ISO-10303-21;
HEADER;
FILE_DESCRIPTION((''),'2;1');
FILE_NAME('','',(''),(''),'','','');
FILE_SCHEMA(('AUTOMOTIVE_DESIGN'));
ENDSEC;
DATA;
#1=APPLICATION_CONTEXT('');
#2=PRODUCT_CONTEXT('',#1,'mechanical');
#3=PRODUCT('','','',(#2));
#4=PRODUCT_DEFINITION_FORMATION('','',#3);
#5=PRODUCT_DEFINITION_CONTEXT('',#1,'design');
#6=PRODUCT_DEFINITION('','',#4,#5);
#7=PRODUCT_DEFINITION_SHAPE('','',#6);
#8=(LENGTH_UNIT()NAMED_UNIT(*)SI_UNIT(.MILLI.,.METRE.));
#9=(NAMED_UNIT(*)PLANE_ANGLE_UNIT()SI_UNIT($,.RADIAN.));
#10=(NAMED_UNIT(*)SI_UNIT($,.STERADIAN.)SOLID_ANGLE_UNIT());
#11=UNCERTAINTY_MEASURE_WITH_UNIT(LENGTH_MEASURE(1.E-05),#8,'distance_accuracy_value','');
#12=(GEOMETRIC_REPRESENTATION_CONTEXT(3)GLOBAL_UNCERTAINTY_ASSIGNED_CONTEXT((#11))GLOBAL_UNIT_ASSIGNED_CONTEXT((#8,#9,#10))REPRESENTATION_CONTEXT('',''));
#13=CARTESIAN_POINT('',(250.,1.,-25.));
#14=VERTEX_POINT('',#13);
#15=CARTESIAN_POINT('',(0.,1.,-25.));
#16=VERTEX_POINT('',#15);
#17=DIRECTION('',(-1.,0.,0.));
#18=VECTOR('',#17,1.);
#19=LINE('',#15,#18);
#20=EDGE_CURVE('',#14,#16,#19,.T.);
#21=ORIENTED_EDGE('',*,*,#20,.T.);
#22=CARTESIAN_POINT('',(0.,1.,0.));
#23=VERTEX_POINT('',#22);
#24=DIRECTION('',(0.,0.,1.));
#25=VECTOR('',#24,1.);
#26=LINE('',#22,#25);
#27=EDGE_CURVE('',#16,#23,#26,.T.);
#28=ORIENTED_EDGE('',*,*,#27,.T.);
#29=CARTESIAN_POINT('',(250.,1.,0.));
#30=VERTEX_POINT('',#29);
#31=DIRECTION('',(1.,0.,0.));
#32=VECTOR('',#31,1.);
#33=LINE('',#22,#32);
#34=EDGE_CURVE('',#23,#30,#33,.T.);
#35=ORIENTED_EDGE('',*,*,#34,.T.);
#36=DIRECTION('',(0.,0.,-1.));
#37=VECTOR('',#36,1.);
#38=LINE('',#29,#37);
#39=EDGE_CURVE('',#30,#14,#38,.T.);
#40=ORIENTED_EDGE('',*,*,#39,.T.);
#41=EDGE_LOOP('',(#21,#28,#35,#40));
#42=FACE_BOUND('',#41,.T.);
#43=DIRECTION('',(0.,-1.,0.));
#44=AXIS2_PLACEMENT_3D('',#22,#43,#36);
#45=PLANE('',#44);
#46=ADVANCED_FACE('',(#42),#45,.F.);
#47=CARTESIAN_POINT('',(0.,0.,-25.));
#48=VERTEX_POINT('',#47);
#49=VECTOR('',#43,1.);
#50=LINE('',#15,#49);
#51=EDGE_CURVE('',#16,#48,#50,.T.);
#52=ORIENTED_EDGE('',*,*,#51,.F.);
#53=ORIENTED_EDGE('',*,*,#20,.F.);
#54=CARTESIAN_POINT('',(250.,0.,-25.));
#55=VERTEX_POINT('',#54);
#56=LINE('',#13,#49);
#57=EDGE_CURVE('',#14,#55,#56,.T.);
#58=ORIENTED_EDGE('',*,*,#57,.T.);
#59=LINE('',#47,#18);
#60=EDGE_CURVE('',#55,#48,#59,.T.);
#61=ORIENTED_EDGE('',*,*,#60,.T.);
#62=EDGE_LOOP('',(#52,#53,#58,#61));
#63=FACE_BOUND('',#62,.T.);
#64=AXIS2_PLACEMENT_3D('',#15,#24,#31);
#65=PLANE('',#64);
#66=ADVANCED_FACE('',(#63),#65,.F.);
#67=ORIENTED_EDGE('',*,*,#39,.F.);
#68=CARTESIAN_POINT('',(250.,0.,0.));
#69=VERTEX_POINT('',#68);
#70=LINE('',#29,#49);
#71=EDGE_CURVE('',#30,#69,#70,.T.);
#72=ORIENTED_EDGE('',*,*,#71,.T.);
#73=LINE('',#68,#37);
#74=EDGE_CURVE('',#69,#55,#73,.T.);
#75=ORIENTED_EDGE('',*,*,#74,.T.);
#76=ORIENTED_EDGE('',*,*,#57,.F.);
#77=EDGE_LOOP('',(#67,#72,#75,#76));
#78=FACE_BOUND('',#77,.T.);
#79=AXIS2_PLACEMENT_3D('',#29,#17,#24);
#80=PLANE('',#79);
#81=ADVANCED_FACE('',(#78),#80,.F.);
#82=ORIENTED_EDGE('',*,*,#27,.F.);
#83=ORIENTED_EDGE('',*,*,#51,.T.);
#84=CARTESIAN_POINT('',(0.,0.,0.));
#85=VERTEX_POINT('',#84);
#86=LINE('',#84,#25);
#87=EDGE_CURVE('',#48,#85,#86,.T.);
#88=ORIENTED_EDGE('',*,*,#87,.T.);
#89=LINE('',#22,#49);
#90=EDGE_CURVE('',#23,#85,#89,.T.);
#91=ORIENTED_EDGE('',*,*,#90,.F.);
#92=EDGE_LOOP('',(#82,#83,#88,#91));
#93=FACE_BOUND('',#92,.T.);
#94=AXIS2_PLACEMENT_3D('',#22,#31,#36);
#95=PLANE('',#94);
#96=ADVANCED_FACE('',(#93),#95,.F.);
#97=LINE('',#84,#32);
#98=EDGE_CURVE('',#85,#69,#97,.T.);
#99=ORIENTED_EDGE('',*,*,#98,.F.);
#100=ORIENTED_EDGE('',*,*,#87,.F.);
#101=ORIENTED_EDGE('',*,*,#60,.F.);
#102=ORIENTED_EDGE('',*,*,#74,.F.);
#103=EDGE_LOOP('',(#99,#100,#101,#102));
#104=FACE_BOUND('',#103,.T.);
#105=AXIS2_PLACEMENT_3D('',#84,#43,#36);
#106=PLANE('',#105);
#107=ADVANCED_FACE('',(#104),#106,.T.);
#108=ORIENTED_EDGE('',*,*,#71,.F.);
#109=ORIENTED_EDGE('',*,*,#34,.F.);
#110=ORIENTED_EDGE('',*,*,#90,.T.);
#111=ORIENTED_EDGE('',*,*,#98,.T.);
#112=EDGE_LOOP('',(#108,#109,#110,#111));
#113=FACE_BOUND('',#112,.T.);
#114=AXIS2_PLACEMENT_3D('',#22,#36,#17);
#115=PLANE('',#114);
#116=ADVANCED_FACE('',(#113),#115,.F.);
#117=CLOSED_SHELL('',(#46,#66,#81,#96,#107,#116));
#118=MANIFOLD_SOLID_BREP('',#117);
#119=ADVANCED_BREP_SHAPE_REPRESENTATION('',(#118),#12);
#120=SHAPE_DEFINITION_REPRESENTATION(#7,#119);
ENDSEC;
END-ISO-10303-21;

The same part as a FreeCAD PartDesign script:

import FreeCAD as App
import Part
import Sketcher

V = App.Vector


def add_polygon(sketch, points):
    """Adds a closed chain of lines whose ends are joined by coincident constraints."""
    first, n = sketch.GeometryCount, len(points)
    for a, b in zip(points, points[1:] + points[:1]):
        sketch.addGeometry(Part.LineSegment(App.Vector(*a, 0), App.Vector(*b, 0)), False)
    for i in range(n):
        sketch.addConstraint(Sketcher.Constraint("Coincident", first + i, 2, first + (i + 1) % n, 1))

doc = App.newDocument("Part")
params = doc.addObject("Spreadsheet::Sheet", "Params")
for row, (alias, value) in enumerate([
    ("sketch1_width", "250 mm"),
    ("sketch1_height", "25 mm"),
    ("pad1_length", "1 mm"),
], start=1):
    params.set(f"A{row}", alias)
    params.set(f"B{row}", "=" + value)
    params.setAlias(f"B{row}", alias)

body = doc.addObject("PartDesign::Body", "Body")

# Sketch on XZ plane
sketch1 = doc.addObject("Sketcher::SketchObject", "Sketch")
body.addObject(sketch1)
sketch1.AttachmentSupport = (doc.XZ_Plane, [""])
sketch1.MapMode = "FlatFace"
add_polygon(sketch1, [(0, -25), (0, 0), (250, 0), (250, -25)])  # lines 0-3
sketch1.addConstraint(Sketcher.Constraint("Vertical", 0))
sketch1.addConstraint(Sketcher.Constraint("Horizontal", 1))
sketch1.addConstraint(Sketcher.Constraint("Vertical", 2))
sketch1.addConstraint(Sketcher.Constraint("Horizontal", 3))
sketch1.addConstraint(Sketcher.Constraint("Coincident", 0, 2, -1, 1))
sketch1.addConstraint(Sketcher.Constraint("DistanceX", 1, 1, 1, 2, 250.0))
sketch1.addConstraint(Sketcher.Constraint("DistanceY", 0, 1, 0, 2, 25.0))
sketch1.setExpression("Constraints[9]", "Params.sketch1_width")
sketch1.setExpression("Constraints[10]", "Params.sketch1_height")
pad1 = doc.addObject("PartDesign::Pad", "Pad")
body.addObject(pad1)
pad1.Profile = sketch1
pad1.setExpression("Length", "Params.pad1_length")
pad1.Reversed = True

doc.recompute()
